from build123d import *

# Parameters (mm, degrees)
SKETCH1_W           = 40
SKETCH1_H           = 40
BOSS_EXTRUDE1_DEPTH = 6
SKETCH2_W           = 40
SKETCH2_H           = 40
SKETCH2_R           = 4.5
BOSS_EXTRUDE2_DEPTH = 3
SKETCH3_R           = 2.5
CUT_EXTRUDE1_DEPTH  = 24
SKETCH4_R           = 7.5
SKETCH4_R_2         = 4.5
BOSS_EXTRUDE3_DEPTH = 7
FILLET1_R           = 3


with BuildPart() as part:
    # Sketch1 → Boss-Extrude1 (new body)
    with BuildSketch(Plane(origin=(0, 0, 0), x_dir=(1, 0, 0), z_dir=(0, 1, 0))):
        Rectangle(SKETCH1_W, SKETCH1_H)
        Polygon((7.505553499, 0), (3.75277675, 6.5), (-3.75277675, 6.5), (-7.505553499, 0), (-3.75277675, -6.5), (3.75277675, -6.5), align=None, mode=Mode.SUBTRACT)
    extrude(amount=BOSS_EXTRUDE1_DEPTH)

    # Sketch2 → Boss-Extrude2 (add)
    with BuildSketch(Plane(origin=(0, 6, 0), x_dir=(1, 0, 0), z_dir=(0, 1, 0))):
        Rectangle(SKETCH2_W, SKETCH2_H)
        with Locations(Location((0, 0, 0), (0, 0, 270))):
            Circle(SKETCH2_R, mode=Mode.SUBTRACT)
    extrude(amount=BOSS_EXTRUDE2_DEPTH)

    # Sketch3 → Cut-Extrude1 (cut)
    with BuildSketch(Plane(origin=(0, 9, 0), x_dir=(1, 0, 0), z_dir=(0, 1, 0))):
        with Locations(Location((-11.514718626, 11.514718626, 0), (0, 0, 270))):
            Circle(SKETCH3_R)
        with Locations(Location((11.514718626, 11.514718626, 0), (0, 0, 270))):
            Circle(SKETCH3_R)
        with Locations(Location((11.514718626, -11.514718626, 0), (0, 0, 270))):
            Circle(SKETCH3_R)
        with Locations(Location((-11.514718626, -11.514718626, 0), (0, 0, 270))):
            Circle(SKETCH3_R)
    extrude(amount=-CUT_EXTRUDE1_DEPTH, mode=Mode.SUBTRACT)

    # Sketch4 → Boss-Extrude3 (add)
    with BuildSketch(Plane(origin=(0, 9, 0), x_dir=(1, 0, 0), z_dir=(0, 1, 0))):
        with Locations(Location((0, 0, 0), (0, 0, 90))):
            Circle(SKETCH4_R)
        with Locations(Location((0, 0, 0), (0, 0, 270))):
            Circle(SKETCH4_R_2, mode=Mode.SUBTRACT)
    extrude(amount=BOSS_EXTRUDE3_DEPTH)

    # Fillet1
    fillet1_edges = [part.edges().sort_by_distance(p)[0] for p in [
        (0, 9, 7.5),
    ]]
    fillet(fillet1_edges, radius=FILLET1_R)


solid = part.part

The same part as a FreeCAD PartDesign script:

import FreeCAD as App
import Part
import Sketcher

V = App.Vector
Q = App.Units.Quantity


def edges_at(feature, points):
    """Names of the edges that pass closest to the given points."""
    edges = feature.Shape.Edges
    near = lambda p: min(range(len(edges)), key=lambda i: edges[i].distToShape(Part.Vertex(*p))[0])
    return sorted({f"Edge{near(p) + 1}" for p in points})

doc = App.newDocument("Part")
body = doc.addObject("PartDesign::Body", "Body")

sketch1 = body.newObject("Sketcher::SketchObject", "Sketch")
sketch1.AttachmentSupport = (doc.getObject("XZ_Plane"), [""])
sketch1.MapMode = "FlatFace"
sketch1.addGeometry([
    Part.LineSegment(V(-20, -20, 0), V(-20, 20, 0)),
    Part.LineSegment(V(-20, 20, 0), V(20, 20, 0)),
    Part.LineSegment(V(20, 20, 0), V(20, -20, 0)),
    Part.LineSegment(V(20, -20, 0), V(-20, -20, 0)),
    Part.LineSegment(V(3.752777, -6.5, 0), V(7.505553, 0, 0)),
    Part.LineSegment(V(7.505553, 0, 0), V(3.752777, 6.5, 0)),
    Part.LineSegment(V(3.752777, 6.5, 0), V(-3.752777, 6.5, 0)),
    Part.LineSegment(V(-3.752777, 6.5, 0), V(-7.505553, 0, 0)),
    Part.LineSegment(V(-7.505553, 0, 0), V(-3.752777, -6.5, 0)),
    Part.LineSegment(V(-3.752777, -6.5, 0), V(3.752777, -6.5, 0)),
], False)
sketch1.addConstraint([
    Sketcher.Constraint("Coincident", 0, 2, 1, 1),
    Sketcher.Constraint("Coincident", 1, 2, 2, 1),
    Sketcher.Constraint("Coincident", 2, 2, 3, 1),
    Sketcher.Constraint("Coincident", 3, 2, 0, 1),
    Sketcher.Constraint("Coincident", 4, 2, 5, 1),
    Sketcher.Constraint("Coincident", 5, 2, 6, 1),
    Sketcher.Constraint("Coincident", 6, 2, 7, 1),
    Sketcher.Constraint("Coincident", 7, 2, 8, 1),
    Sketcher.Constraint("Coincident", 8, 2, 9, 1),
    Sketcher.Constraint("Coincident", 9, 2, 4, 1),
    Sketcher.Constraint("Vertical", 0),
    Sketcher.Constraint("Horizontal", 1),
    Sketcher.Constraint("Vertical", 2),
    Sketcher.Constraint("Horizontal", 3),
    Sketcher.Constraint("Horizontal", 6),
    Sketcher.Constraint("Horizontal", 9),
    Sketcher.Constraint("Symmetric", 0, 2, 2, 2, -1, 1),
    Sketcher.Constraint("Symmetric", 4, 2, 7, 2, -1, 1),
    Sketcher.Constraint("Symmetric", 5, 2, 8, 2, -1, 1),
    Sketcher.Constraint("PointOnObject", 4, 2, -1),
    Sketcher.Constraint("Parallel", 4, 7),
    Sketcher.Constraint("Vertical", 6, 2, 8, 2),
    Sketcher.Constraint("Equal", 3, 0),
    Sketcher.Constraint("DistanceX", 1, 1, 1, 2, 40.0),
    Sketcher.Constraint("Angle", 4, Q("60 deg")),
    Sketcher.Constraint("DistanceY", 8, 2, 6, 2, 13.0),
    Sketcher.Constraint("DistanceX", 6, 2, 6, 1, 7.505554),
])
pad1 = body.newObject("PartDesign::Pad", "Pad")
pad1.Profile = sketch1
pad1.Length = 6
pad1.Reversed = True

sketch2 = body.newObject("Sketcher::SketchObject", "Sketch001")
sketch2.AttachmentSupport = (doc.getObject("XZ_Plane"), [""])
sketch2.MapMode = "FlatFace"
sketch2.AttachmentOffset = App.Placement(V(0, 0, -6), App.Rotation())
sketch2.addGeometry([
    Part.LineSegment(V(-20, -20, 0), V(-20, 20, 0)),
    Part.LineSegment(V(-20, 20, 0), V(20, 20, 0)),
    Part.LineSegment(V(20, 20, 0), V(20, -20, 0)),
    Part.LineSegment(V(20, -20, 0), V(-20, -20, 0)),
    Part.Circle(V(0, 0, 0), V(0, 0, 1), 4.5),
], False)
sketch2.addConstraint([
    Sketcher.Constraint("Coincident", 0, 2, 1, 1),
    Sketcher.Constraint("Coincident", 1, 2, 2, 1),
    Sketcher.Constraint("Coincident", 2, 2, 3, 1),
    Sketcher.Constraint("Coincident", 3, 2, 0, 1),
    Sketcher.Constraint("Vertical", 0),
    Sketcher.Constraint("Horizontal", 1),
    Sketcher.Constraint("Vertical", 2),
    Sketcher.Constraint("Horizontal", 3),
    Sketcher.Constraint("Coincident", 4, 3, -1, 1),
    Sketcher.Constraint("Symmetric", 0, 2, 2, 2, -1, 1),
    Sketcher.Constraint("Equal", 3, 0),
    Sketcher.Constraint("Diameter", 4, 9.0),
    Sketcher.Constraint("DistanceX", 1, 1, 1, 2, 40.0),
])
pad2 = body.newObject("PartDesign::Pad", "Pad001")
pad2.Profile = sketch2
pad2.Length = 3
pad2.Reversed = True

sketch3 = body.newObject("Sketcher::SketchObject", "Sketch002")
sketch3.AttachmentSupport = (doc.getObject("XZ_Plane"), [""])
sketch3.MapMode = "FlatFace"
sketch3.AttachmentOffset = App.Placement(V(0, 0, -9), App.Rotation())
sketch3.addGeometry([
    Part.Circle(V(-11.514719, -11.514719, 0), V(0, 0, 1), 2.5),
    Part.Circle(V(11.514719, -11.514719, 0), V(0, 0, 1), 2.5),
    Part.Circle(V(11.514719, 11.514719, 0), V(0, 0, 1), 2.5),
    Part.Circle(V(-11.514719, 11.514719, 0), V(0, 0, 1), 2.5),
], False)
sketch3.addConstraint([
    Sketcher.Constraint("Equal", 0, 1),
    Sketcher.Constraint("Equal", 1, 2),
    Sketcher.Constraint("Equal", 2, 3),
    Sketcher.Constraint("Symmetric", 0, 3, 2, 3, -1, 1),
    Sketcher.Constraint("Symmetric", 1, 3, 3, 3, -1, 1),
    Sketcher.Constraint("Symmetric", 0, 3, 1, 3, -2),
    Sketcher.Constraint("Diameter", 0, 5.0),
    Sketcher.Constraint("DistanceX", 0, 3, -1, 1, 11.514719),
    Sketcher.Constraint("DistanceY", 0, 3, -1, 1, 11.514719),
])
pocket1 = body.newObject("PartDesign::Pocket", "Pocket")
pocket1.Profile = sketch3
pocket1.Length = 24
pocket1.Reversed = True

sketch4 = body.newObject("Sketcher::SketchObject", "Sketch003")
sketch4.AttachmentSupport = (doc.getObject("XZ_Plane"), [""])
sketch4.MapMode = "FlatFace"
sketch4.AttachmentOffset = App.Placement(V(0, 0, -9), App.Rotation())
sketch4.addGeometry([
    Part.Circle(V(0, 0, 0), V(0, 0, 1), 7.5),
    Part.Circle(V(0, 0, 0), V(0, 0, 1), 4.5),
], False)
sketch4.addConstraint([
    Sketcher.Constraint("Coincident", 0, 3, -1, 1),
    Sketcher.Constraint("Coincident", 1, 3, -1, 1),
    Sketcher.Constraint("Diameter", 0, 15.0),
    Sketcher.Constraint("Diameter", 1, 9.0),
])
pad3 = body.newObject("PartDesign::Pad", "Pad002")
pad3.Profile = sketch4
pad3.Length = 7
pad3.Reversed = True
doc.recompute()

fillet = body.newObject("PartDesign::Fillet", "Fillet")
fillet.Base = (pad3, edges_at(pad3, [(0, 9, 7.5)]))
fillet.Radius = 3

doc.recompute()
